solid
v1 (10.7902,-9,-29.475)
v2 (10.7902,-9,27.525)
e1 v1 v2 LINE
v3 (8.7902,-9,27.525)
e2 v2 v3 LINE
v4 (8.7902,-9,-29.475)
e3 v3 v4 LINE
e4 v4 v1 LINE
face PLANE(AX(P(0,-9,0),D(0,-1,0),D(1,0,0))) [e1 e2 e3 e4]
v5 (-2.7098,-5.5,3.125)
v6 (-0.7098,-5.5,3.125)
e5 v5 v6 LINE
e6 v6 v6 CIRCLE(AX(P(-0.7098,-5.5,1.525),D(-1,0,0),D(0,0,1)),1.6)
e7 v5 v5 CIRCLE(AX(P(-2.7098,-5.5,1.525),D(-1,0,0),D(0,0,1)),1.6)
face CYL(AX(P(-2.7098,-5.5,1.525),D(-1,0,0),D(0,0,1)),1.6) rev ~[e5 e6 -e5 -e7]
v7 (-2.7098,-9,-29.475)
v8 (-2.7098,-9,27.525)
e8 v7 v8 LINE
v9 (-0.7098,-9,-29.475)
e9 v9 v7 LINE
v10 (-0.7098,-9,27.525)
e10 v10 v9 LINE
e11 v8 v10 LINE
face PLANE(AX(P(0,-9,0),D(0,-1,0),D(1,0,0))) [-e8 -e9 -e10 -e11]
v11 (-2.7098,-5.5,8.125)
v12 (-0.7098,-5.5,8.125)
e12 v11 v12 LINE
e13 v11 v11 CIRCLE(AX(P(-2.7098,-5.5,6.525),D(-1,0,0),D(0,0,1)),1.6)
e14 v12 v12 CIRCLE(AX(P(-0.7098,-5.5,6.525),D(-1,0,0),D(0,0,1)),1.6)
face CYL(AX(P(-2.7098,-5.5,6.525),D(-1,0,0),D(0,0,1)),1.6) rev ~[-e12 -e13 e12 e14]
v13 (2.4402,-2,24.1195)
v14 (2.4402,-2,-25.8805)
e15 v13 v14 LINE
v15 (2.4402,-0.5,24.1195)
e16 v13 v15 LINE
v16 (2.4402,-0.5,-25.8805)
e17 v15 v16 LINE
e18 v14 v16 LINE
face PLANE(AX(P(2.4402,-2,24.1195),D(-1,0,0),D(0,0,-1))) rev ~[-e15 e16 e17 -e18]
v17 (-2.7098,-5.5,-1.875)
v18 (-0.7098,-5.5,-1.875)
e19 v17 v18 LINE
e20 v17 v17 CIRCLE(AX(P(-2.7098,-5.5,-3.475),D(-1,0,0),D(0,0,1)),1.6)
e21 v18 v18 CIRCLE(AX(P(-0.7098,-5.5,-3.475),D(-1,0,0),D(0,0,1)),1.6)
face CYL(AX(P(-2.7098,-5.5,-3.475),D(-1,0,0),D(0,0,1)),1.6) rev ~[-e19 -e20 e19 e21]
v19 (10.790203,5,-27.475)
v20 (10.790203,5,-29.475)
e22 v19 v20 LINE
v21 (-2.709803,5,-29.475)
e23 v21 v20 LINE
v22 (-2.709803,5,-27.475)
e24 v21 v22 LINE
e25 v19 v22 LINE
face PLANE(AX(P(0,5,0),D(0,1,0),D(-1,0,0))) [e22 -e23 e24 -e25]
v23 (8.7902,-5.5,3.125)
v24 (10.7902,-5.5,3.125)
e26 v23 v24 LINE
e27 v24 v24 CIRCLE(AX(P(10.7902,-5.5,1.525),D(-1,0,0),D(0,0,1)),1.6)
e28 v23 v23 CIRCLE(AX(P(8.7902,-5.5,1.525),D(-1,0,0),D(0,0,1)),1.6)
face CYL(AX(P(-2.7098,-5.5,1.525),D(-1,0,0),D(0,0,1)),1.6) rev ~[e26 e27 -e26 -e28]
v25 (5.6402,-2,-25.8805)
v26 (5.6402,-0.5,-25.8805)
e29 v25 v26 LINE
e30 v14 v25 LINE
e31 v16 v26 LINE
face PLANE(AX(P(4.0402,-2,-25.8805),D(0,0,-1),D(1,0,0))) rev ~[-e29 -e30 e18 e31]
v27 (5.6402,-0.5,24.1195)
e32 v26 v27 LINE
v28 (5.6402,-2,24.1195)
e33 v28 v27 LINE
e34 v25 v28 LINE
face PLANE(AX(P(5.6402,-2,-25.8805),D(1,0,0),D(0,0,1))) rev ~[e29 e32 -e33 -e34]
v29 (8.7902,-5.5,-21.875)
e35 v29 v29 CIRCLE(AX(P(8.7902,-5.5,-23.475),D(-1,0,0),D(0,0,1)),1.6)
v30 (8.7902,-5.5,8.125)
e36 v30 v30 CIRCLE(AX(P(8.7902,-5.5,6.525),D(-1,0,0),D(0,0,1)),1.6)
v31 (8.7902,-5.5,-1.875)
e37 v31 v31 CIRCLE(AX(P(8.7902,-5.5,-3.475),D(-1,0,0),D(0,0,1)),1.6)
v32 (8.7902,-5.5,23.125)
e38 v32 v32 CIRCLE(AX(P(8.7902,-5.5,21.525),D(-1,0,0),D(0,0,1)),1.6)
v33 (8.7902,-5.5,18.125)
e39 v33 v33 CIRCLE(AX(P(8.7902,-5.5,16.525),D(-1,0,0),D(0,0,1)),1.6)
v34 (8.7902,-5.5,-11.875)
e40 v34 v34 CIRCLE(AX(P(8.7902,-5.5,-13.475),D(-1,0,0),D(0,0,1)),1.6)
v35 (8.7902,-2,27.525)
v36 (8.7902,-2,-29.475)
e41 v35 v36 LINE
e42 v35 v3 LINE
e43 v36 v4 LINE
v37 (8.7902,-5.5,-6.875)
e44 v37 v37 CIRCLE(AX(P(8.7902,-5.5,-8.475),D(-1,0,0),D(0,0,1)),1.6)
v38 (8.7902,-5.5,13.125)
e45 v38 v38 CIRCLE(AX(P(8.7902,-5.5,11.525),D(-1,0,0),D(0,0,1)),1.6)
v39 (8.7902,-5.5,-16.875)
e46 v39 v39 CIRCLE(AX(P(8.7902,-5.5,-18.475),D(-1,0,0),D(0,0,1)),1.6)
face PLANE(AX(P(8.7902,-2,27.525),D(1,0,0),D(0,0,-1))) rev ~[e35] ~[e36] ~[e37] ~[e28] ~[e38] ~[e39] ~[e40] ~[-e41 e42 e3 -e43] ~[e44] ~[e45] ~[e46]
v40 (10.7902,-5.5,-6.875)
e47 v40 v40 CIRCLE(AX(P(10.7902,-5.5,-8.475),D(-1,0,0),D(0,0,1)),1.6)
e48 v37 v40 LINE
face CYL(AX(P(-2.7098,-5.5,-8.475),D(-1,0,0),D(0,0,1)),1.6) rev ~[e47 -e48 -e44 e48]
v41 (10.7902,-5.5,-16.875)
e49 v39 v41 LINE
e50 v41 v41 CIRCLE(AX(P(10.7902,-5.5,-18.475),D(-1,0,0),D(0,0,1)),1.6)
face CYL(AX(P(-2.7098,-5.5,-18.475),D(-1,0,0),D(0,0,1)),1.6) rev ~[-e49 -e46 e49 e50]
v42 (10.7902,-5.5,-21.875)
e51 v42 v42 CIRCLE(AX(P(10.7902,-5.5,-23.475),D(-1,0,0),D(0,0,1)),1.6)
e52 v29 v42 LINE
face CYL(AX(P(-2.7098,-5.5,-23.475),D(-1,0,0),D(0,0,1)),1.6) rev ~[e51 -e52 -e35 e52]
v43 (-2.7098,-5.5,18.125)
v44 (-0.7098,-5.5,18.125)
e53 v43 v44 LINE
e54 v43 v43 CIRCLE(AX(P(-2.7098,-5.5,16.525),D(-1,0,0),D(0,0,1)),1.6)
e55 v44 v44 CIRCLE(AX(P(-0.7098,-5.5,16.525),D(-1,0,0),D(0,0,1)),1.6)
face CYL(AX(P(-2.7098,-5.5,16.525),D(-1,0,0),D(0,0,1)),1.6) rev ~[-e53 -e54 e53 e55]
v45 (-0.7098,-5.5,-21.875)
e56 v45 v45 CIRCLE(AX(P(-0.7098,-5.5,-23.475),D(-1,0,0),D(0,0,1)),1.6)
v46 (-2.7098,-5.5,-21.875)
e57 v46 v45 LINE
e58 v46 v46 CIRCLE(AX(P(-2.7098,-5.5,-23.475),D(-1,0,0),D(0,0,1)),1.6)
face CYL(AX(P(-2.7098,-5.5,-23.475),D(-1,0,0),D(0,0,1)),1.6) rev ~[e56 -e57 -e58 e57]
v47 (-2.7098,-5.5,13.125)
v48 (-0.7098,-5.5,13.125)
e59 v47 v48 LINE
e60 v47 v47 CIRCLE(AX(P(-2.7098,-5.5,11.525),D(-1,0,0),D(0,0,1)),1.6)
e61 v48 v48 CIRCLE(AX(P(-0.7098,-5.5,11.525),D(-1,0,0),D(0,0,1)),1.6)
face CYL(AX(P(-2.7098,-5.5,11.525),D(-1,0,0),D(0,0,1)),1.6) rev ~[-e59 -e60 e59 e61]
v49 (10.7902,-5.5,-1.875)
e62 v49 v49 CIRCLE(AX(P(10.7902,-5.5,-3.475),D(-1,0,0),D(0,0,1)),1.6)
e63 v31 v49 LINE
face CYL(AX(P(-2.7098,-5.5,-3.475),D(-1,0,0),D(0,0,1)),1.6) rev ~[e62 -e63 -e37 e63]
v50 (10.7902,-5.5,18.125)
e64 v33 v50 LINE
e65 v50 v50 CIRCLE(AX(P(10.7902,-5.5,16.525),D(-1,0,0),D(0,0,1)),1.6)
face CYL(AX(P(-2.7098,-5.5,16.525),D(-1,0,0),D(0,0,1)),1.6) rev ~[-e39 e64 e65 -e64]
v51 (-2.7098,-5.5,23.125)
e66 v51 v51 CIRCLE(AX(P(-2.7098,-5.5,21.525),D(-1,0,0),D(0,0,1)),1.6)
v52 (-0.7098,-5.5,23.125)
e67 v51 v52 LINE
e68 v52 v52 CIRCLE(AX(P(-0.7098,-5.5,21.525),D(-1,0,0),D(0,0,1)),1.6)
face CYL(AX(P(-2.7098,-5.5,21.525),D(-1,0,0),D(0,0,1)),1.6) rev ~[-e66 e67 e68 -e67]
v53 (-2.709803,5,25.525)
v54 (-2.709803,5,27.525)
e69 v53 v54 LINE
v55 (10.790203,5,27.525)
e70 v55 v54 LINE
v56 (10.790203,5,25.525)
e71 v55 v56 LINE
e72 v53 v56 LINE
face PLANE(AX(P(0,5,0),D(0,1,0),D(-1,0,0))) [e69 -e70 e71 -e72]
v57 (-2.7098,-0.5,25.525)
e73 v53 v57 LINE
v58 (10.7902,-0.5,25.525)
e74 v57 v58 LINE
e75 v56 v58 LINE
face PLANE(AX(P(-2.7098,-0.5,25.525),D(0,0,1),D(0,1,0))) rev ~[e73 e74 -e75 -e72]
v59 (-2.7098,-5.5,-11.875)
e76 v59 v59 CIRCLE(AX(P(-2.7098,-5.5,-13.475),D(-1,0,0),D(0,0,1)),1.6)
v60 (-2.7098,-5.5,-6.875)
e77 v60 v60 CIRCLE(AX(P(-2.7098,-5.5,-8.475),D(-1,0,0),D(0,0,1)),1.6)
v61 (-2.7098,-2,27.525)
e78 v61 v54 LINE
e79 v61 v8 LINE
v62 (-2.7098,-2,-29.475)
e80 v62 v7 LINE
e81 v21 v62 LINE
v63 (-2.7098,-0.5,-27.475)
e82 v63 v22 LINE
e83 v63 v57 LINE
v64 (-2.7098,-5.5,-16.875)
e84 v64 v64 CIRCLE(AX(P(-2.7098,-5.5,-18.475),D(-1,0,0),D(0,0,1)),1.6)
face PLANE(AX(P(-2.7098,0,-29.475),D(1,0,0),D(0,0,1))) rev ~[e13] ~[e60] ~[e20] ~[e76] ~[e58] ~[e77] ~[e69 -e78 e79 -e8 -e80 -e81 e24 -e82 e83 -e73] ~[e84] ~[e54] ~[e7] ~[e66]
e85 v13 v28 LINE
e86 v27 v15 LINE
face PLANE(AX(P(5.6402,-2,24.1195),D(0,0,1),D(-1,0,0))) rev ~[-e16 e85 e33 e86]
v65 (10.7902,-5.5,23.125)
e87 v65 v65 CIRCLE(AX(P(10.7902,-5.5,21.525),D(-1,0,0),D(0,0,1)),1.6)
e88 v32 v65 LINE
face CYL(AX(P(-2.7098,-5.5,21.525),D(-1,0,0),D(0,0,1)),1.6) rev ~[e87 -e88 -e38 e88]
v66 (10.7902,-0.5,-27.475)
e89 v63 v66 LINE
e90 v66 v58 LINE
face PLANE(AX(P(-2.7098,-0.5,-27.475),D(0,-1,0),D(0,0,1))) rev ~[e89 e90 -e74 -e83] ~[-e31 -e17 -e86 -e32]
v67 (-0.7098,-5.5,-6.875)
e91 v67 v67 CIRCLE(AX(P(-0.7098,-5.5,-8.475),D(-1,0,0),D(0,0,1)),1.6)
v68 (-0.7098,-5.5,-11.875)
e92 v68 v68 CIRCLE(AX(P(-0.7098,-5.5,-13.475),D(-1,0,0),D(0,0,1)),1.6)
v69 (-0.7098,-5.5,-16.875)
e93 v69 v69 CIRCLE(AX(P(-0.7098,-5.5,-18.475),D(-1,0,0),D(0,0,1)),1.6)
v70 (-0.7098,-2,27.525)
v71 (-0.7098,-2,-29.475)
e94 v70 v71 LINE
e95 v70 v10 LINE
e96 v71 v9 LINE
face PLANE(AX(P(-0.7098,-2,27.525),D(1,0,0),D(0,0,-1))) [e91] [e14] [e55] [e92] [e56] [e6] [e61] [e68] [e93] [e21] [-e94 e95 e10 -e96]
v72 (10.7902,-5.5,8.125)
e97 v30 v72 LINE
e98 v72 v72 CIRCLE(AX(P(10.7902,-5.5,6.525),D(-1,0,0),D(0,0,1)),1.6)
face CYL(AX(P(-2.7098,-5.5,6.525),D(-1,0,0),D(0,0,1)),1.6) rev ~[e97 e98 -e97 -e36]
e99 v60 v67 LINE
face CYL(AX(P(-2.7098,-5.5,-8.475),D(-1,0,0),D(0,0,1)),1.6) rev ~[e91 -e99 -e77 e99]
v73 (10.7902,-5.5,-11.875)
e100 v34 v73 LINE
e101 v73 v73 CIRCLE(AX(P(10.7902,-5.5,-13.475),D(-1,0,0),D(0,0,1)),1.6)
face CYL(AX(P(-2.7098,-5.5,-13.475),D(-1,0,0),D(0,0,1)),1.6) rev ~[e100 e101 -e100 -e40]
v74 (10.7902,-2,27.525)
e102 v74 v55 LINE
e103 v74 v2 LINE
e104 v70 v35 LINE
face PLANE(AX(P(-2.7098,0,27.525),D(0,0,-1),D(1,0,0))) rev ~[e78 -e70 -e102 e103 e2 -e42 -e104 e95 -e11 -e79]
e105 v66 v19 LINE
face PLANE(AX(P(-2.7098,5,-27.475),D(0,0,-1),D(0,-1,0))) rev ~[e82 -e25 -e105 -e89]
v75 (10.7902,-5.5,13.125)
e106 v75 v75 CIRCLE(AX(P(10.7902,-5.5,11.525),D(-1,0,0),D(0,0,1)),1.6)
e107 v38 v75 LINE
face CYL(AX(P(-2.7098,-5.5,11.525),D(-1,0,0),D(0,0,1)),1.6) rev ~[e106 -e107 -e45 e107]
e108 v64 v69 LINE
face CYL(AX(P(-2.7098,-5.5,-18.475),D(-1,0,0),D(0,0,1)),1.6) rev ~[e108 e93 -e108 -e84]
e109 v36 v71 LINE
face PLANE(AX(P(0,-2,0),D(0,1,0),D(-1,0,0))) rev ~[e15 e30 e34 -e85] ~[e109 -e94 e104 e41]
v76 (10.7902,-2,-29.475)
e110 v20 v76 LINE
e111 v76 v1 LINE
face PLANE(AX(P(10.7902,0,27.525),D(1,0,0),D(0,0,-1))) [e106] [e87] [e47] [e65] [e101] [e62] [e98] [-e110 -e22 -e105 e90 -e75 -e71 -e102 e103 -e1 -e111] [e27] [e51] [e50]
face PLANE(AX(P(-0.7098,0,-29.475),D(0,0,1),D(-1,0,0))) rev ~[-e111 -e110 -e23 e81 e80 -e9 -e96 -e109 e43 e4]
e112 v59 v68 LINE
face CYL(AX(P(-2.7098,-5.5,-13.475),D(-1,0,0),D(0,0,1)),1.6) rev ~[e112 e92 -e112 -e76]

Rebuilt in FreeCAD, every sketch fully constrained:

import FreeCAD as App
import Part
import Sketcher
from FreeCAD import Vector
Q = App.Units.Quantity


def add_polygon(sketch, points):
    """Adds a closed chain of lines whose ends are joined by coincident constraints."""
    first, n = sketch.GeometryCount, len(points)
    for a, b in zip(points, points[1:] + points[:1]):
        sketch.addGeometry(Part.LineSegment(App.Vector(*a, 0), App.Vector(*b, 0)), False)
    for i in range(n):
        sketch.addConstraint(Sketcher.Constraint("Coincident", first + i, 2, first + (i + 1) % n, 1))

doc = App.newDocument("Part")
body = doc.addObject("PartDesign::Body", "Body")
body.AllowCompound = True

# Sketch on XZ plane
sketch1 = doc.addObject("Sketcher::SketchObject", "Sketch")
body.addObject(sketch1)
sketch1.AttachmentSupport = (doc.XZ_Plane, [""])
sketch1.MapMode = "FlatFace"
add_polygon(sketch1, [(-2.7, -29.5), (-2.7, 27.5), (-0.7, 27.5), (-0.7, -29.5)])  # lines 0-3
add_polygon(sketch1, [(8.8, -29.5), (8.8, 27.5), (10.8, 27.5), (10.8, -29.5)])  # lines 4-7
sketch1.addConstraint(Sketcher.Constraint("Vertical", 0))
sketch1.addConstraint(Sketcher.Constraint("Horizontal", 1))
sketch1.addConstraint(Sketcher.Constraint("Vertical", 2))
sketch1.addConstraint(Sketcher.Constraint("Horizontal", 3))
sketch1.addConstraint(Sketcher.Constraint("Vertical", 4))
sketch1.addConstraint(Sketcher.Constraint("Horizontal", 5))
sketch1.addConstraint(Sketcher.Constraint("Vertical", 6))
sketch1.addConstraint(Sketcher.Constraint("Horizontal", 7))
sketch1.addConstraint(Sketcher.Constraint("Horizontal", 1, 2, 4, 2))
sketch1.addConstraint(Sketcher.Constraint("Horizontal", 3, 2, 6, 2))
sketch1.addConstraint(Sketcher.Constraint("Equal", 3, 5))
sketch1.addConstraint(Sketcher.Constraint("DistanceX", 1, 1, 1, 2, Q("2 mm")))
sketch1.addConstraint(Sketcher.Constraint("DistanceY", 0, 1, 0, 2, Q("57 mm")))
sketch1.addConstraint(Sketcher.Constraint("DistanceX", 1, 2, 4, 2, Q("9.5 mm")))
sketch1.addConstraint(Sketcher.Constraint("DistanceY", -1, 1, 0, 2, Q("27.525 mm")))
sketch1.addConstraint(Sketcher.Constraint("DistanceX", 0, 2, -1, 1, Q("2.7098 mm")))
pad1 = doc.addObject("PartDesign::Pad", "Pad")
body.addObject(pad1)
pad1.Profile = sketch1
pad1.Length = 5
pad1.Reversed = True

# Sketch on XZ plane
sketch2 = doc.addObject("Sketcher::SketchObject", "Sketch001")
body.addObject(sketch2)
sketch2.AttachmentSupport = (doc.XZ_Plane, [""])
sketch2.MapMode = "FlatFace"
add_polygon(sketch2, [(-3, -29), (-3, 28), (11, 28), (11, -29)])  # lines 0-3
sketch2.addConstraint(Sketcher.Constraint("Vertical", 0))
sketch2.addConstraint(Sketcher.Constraint("Horizontal", 1))
sketch2.addConstraint(Sketcher.Constraint("Vertical", 2))
sketch2.addConstraint(Sketcher.Constraint("Horizontal", 3))
sketch2.addConstraint(Sketcher.Constraint("DistanceY", 0, 1, 0, 2, Q("57 mm")))
sketch2.addConstraint(Sketcher.Constraint("DistanceX", 1, 1, 1, 2, Q("13.5 mm")))
sketch2.addConstraint(Sketcher.Constraint("DistanceY", -1, 1, 0, 2, Q("27.525 mm")))
sketch2.addConstraint(Sketcher.Constraint("DistanceX", 0, 2, -1, 1, Q("2.7098 mm")))
pad2 = doc.addObject("PartDesign::Pad", "Pad001")
body.addObject(pad2)
pad2.Profile = sketch2
pad2.Length = 2

# Sketch on YZ plane
sketch3 = doc.addObject("Sketcher::SketchObject", "Sketch002")
body.addObject(sketch3)
sketch3.AttachmentSupport = (doc.YZ_Plane, [""])
sketch3.MapMode = "FlatFace"
sketch3.AttachmentOffset = App.Placement(Vector(0, 0, -2.7098), App.Rotation())
add_polygon(sketch3, [(0, 26), (5, 26), (5, -27), (0, -27)])  # lines 0-3
sketch3.addConstraint(Sketcher.Constraint("Horizontal", 0))
sketch3.addConstraint(Sketcher.Constraint("Vertical", 1))
sketch3.addConstraint(Sketcher.Constraint("Horizontal", 2))
sketch3.addConstraint(Sketcher.Constraint("Vertical", 3))
sketch3.addConstraint(Sketcher.Constraint("DistanceY", 1, 2, 1, 1, Q("53 mm")))
sketch3.addConstraint(Sketcher.Constraint("DistanceX", 0, 1, 0, 2, Q("5.5 mm")))
sketch3.addConstraint(Sketcher.Constraint("DistanceX", -1, 1, 0, 2, Q("5 mm")))
sketch3.addConstraint(Sketcher.Constraint("DistanceY", -1, 1, 0, 2, Q("25.525 mm")))
pocket1 = doc.addObject("PartDesign::Pocket", "Pocket")
body.addObject(pocket1)
pocket1.Profile = sketch3
pocket1.Length = 13.5
pocket1.Reversed = True

# Sketch on YZ plane
sketch4 = doc.addObject("Sketcher::SketchObject", "Sketch003")
body.addObject(sketch4)
sketch4.AttachmentSupport = (doc.YZ_Plane, [""])
sketch4.MapMode = "FlatFace"
sketch4.AttachmentOffset = App.Placement(Vector(0, 0, 8.7902), App.Rotation())
add_polygon(sketch4, [(5, 27.5), (5, 25.5), (0, 25.5), (0, 27.5)])  # lines 0-3
add_polygon(sketch4, [(0, -29.5), (0, -27.5), (5, -27.5), (5, -29.5)])  # lines 4-7
sketch4.addConstraint(Sketcher.Constraint("Vertical", 0))
sketch4.addConstraint(Sketcher.Constraint("Horizontal", 1))
sketch4.addConstraint(Sketcher.Constraint("Vertical", 2))
sketch4.addConstraint(Sketcher.Constraint("Horizontal", 3))
sketch4.addConstraint(Sketcher.Constraint("Vertical", 4))
sketch4.addConstraint(Sketcher.Constraint("Horizontal", 5))
sketch4.addConstraint(Sketcher.Constraint("Vertical", 6))
sketch4.addConstraint(Sketcher.Constraint("Horizontal", 7))
sketch4.addConstraint(Sketcher.Constraint("PointOnObject", 1, 2, -2))
sketch4.addConstraint(Sketcher.Constraint("PointOnObject", 4, 2, -2))
sketch4.addConstraint(Sketcher.Constraint("Vertical", 3, 2, 5, 2))
sketch4.addConstraint(Sketcher.Constraint("Equal", 2, 4))
sketch4.addConstraint(Sketcher.Constraint("DistanceX", 1, 2, 1, 1, Q("5 mm")))
sketch4.addConstraint(Sketcher.Constraint("DistanceY", 0, 2, 0, 1, Q("2 mm")))
sketch4.addConstraint(Sketcher.Constraint("DistanceY", 4, 2, 1, 2, Q("53 mm")))
sketch4.addConstraint(Sketcher.Constraint("DistanceY", -1, 1, 0, 2, Q("25.525 mm")))
pad3 = doc.addObject("PartDesign::Pad", "Pad002")
body.addObject(pad3)
pad3.Profile = sketch4
pad3.Type = "TwoLengths"
pad3.Length = 11.5
pad3.Length2 = 2
pad3.Reversed = True

# Sketch on XZ plane
sketch5 = doc.addObject("Sketcher::SketchObject", "Sketch004")
body.addObject(sketch5)
sketch5.AttachmentSupport = (doc.XZ_Plane, [""])
sketch5.MapMode = "FlatFace"
sketch5.AttachmentOffset = App.Placement(Vector(0, 0, 2), App.Rotation())
add_polygon(sketch5, [(5.6, 24.1), (2.4, 24.1), (2.4, -25.9), (5.6, -25.9)])  # lines 0-3
sketch5.addConstraint(Sketcher.Constraint("Horizontal", 0))
sketch5.addConstraint(Sketcher.Constraint("Vertical", 1))
sketch5.addConstraint(Sketcher.Constraint("Horizontal", 2))
sketch5.addConstraint(Sketcher.Constraint("Vertical", 3))
sketch5.addConstraint(Sketcher.Constraint("DistanceY", 1, 2, 1, 1, Q("50 mm")))
sketch5.addConstraint(Sketcher.Constraint("DistanceX", 0, 2, 0, 1, Q("3.2 mm")))
sketch5.addConstraint(Sketcher.Constraint("DistanceX", -1, 1, 0, 2, Q("2.4402 mm")))
sketch5.addConstraint(Sketcher.Constraint("DistanceY", -1, 1, 0, 2, Q("24.1195 mm")))
pocket2 = doc.addObject("PartDesign::Pocket", "Pocket001")
body.addObject(pocket2)
pocket2.Profile = sketch5
pocket2.Type = "ThroughAll"

# Sketch on XZ plane
sketch6 = doc.addObject("Sketcher::SketchObject", "Sketch005")
body.addObject(sketch6)
sketch6.AttachmentSupport = (doc.XZ_Plane, [""])
sketch6.MapMode = "FlatFace"
sketch6.AttachmentOffset = App.Placement(Vector(0, 0, 2), App.Rotation())
add_polygon(sketch6, [(8.8, 27.5), (8.8, -29.5), (10.8, -29.5), (10.8, 27.5)])  # lines 0-3
add_polygon(sketch6, [(-0.7, 27.5), (-2.7, 27.5), (-2.7, -29.5), (-0.7, -29.5)])  # lines 4-7
sketch6.addConstraint(Sketcher.Constraint("Vertical", 0))
sketch6.addConstraint(Sketcher.Constraint("Horizontal", 1))
sketch6.addConstraint(Sketcher.Constraint("Vertical", 2))
sketch6.addConstraint(Sketcher.Constraint("Horizontal", 3))
sketch6.addConstraint(Sketcher.Constraint("Horizontal", 4))
sketch6.addConstraint(Sketcher.Constraint("Vertical", 5))
sketch6.addConstraint(Sketcher.Constraint("Horizontal", 6))
sketch6.addConstraint(Sketcher.Constraint("Vertical", 7))
sketch6.addConstraint(Sketcher.Constraint("Horizontal", 3, 2, 4, 2))
sketch6.addConstraint(Sketcher.Constraint("Horizontal", 1, 2, 5, 2))
sketch6.addConstraint(Sketcher.Constraint("Equal", 3, 4))
sketch6.addConstraint(Sketcher.Constraint("DistanceX", 1, 1, 1, 2, Q("2 mm")))
sketch6.addConstraint(Sketcher.Constraint("DistanceY", 0, 2, 0, 1, Q("57 mm")))
sketch6.addConstraint(Sketcher.Constraint("DistanceX", 4, 2, 3, 2, Q("11.5 mm")))
sketch6.addConstraint(Sketcher.Constraint("DistanceY", 0, 2, -1, 1, Q("29.475 mm")))
sketch6.addConstraint(Sketcher.Constraint("DistanceX", -1, 1, 0, 2, Q("8.7902 mm")))
pad4 = doc.addObject("PartDesign::Pad", "Pad003")
body.addObject(pad4)
pad4.Profile = sketch6
pad4.Length = 7

# Sketch on YZ plane
sketch7 = doc.addObject("Sketcher::SketchObject", "Sketch006")
body.addObject(sketch7)
sketch7.AttachmentSupport = (doc.YZ_Plane, [""])
sketch7.MapMode = "FlatFace"
sketch7.AttachmentOffset = App.Placement(Vector(0, 0, -2.7098), App.Rotation())
sketch7.addGeometry(Part.Circle(Vector(-5.5, 21.5, 0), Vector(0, 0, 1), 1.6), False)
sketch7.addConstraint(Sketcher.Constraint("Diameter", 0, Q("3.2 mm")))
sketch7.addConstraint(Sketcher.Constraint("DistanceX", 0, 3, -1, 1, Q("5.5 mm")))
sketch7.addConstraint(Sketcher.Constraint("DistanceY", -1, 1, 0, 3, Q("21.525 mm")))
pocket3 = doc.addObject("PartDesign::Pocket", "Pocket002")
body.addObject(pocket3)
pocket3.Profile = sketch7
pocket3.Type = "ThroughAll"
pocket3.Reversed = True
doc.recompute()

linearpattern = doc.addObject("PartDesign::LinearPattern", "LinearPattern")
body.addObject(linearpattern)
linearpattern.Originals = [pocket3]
linearpattern.Direction = (doc.Z_Axis, [""])
linearpattern.Mode = "offset"
linearpattern.Offset = 5
linearpattern.Occurrences = 10
linearpattern.Reversed = True
body.Tip = linearpattern

doc.recompute()
